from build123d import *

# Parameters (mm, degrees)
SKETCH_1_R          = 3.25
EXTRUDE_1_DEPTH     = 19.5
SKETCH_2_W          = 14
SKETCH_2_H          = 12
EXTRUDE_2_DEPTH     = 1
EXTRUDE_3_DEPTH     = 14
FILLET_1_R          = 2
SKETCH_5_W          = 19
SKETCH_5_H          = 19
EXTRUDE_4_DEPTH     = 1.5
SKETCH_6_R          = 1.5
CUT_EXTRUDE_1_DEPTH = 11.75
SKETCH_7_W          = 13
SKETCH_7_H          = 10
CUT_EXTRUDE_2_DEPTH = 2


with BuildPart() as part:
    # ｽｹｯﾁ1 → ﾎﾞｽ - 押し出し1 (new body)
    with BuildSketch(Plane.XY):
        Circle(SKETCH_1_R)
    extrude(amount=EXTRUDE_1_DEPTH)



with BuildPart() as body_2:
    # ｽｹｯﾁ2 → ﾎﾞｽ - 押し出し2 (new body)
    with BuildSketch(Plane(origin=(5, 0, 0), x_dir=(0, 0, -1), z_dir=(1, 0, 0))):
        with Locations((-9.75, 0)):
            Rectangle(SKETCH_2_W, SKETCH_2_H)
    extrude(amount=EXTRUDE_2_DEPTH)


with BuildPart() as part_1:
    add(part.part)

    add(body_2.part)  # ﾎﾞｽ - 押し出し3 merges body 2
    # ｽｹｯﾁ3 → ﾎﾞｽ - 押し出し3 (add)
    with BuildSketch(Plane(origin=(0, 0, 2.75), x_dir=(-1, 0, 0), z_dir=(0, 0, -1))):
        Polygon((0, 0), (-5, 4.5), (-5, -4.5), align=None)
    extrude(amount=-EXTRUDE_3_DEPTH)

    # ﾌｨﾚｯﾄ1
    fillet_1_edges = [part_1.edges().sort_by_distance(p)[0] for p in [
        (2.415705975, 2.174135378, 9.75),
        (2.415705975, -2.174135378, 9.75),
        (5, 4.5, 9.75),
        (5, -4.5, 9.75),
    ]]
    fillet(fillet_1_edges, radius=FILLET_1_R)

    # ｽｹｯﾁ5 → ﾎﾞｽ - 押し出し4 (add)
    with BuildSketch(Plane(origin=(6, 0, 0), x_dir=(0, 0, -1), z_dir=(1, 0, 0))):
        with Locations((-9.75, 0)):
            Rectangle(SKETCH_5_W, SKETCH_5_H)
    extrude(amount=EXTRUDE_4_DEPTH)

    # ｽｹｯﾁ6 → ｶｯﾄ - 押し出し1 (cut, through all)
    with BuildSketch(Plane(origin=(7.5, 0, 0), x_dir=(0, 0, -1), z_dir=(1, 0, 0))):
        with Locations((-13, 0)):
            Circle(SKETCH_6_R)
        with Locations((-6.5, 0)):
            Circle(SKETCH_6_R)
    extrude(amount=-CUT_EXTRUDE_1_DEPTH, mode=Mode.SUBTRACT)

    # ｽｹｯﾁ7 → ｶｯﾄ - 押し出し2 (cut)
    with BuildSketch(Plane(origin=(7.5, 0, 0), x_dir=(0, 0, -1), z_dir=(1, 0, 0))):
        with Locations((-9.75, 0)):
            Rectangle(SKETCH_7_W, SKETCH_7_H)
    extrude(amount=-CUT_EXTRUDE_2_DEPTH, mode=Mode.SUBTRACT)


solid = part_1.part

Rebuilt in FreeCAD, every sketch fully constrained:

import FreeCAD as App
import Part
import Sketcher


def edges_at(feature, points):
    """Names of the edges that pass closest to the given points."""
    edges = feature.Shape.Edges
    near = lambda p: min(range(len(edges)), key=lambda i: edges[i].distToShape(Part.Vertex(*p))[0])
    return sorted({f"Edge{near(p) + 1}" for p in points})

doc = App.newDocument("Part")
body = doc.addObject("PartDesign::Body", "Body")

# Sketch on XY plane
sketch1 = doc.addObject("Sketcher::SketchObject", "Sketch")
body.addObject(sketch1)
sketch1.AttachmentSupport = (doc.XY_Plane, [""])
sketch1.MapMode = "FlatFace"
sketch1.addGeometry(Part.Circle(App.Vector(0, 0, 0), App.Vector(0, 0, 1), 3.2), False)
sketch1.addConstraint([
    Sketcher.Constraint("Coincident", 0, 3, -1, 1),
    Sketcher.Constraint("Diameter", 0, 6.5),
])
pad1 = doc.addObject("PartDesign::Pad", "Pad")
body.addObject(pad1)
pad1.Profile = sketch1
pad1.Length = 19.5
body2 = doc.addObject("PartDesign::Body", "Body001")

# Sketch on YZ plane
sketch2 = doc.addObject("Sketcher::SketchObject", "Sketch001")
body2.addObject(sketch2)
sketch2.AttachmentSupport = (doc.getObject("YZ_Plane001"), [""])
sketch2.MapMode = "FlatFace"
sketch2.AttachmentOffset = App.Placement(App.Vector(0, 0, 5), App.Rotation())
sketch2.addGeometry([
    Part.LineSegment(App.Vector(6, 17, 0), App.Vector(-6, 17, 0)),
    Part.LineSegment(App.Vector(-6, 17, 0), App.Vector(-6, 3, 0)),
    Part.LineSegment(App.Vector(-6, 3, 0), App.Vector(6, 3, 0)),
    Part.LineSegment(App.Vector(6, 3, 0), App.Vector(6, 17, 0)),
], False)
sketch2.addConstraint([
    Sketcher.Constraint("Coincident", 0, 2, 1, 1),
    Sketcher.Constraint("Coincident", 1, 2, 2, 1),
    Sketcher.Constraint("Coincident", 2, 2, 3, 1),
    Sketcher.Constraint("Coincident", 3, 2, 0, 1),
    Sketcher.Constraint("Horizontal", 0),
    Sketcher.Constraint("Vertical", 1),
    Sketcher.Constraint("Horizontal", 2),
    Sketcher.Constraint("Vertical", 3),
    Sketcher.Constraint("DistanceX", 0, 2, 0, 1, 12.0),
    Sketcher.Constraint("DistanceY", 1, 2, 1, 1, 14.0),
    Sketcher.Constraint("DistanceX", 0, 2, -1, 1, 6.0),
    Sketcher.Constraint("DistanceY", -1, 1, 0, 2, 16.75),
])
pad2 = doc.addObject("PartDesign::Pad", "Pad001")
body2.addObject(pad2)
pad2.Profile = sketch2
pad2.Length = 1
body.AllowCompound = True
doc.recompute()

boolean = doc.addObject("PartDesign::Boolean", "Boolean")
body.addObject(boolean)
boolean.Type = "Fuse"
boolean.addObjects([body2])

# Sketch on XY plane
sketch3 = doc.addObject("Sketcher::SketchObject", "Sketch002")
body.addObject(sketch3)
sketch3.AttachmentSupport = (doc.XY_Plane, [""])
sketch3.MapMode = "FlatFace"
sketch3.AttachmentOffset = App.Placement(App.Vector(0, 0, 2.75), App.Rotation())
sketch3.addGeometry([
    Part.LineSegment(App.Vector(0, 0, 0), App.Vector(5, 4, 0)),
    Part.LineSegment(App.Vector(5, 4, 0), App.Vector(5, -4, 0)),
    Part.LineSegment(App.Vector(5, -4, 0), App.Vector(0, 0, 0)),
], False)
sketch3.addConstraint([
    Sketcher.Constraint("Coincident", 0, 2, 1, 1),
    Sketcher.Constraint("Coincident", 1, 2, 2, 1),
    Sketcher.Constraint("Coincident", 2, 2, 0, 1),
    Sketcher.Constraint("Vertical", 1),
    Sketcher.Constraint("Coincident", 2, 2, -1, 1),
    Sketcher.Constraint("Equal", 0, 2),
    Sketcher.Constraint("DistanceY", 1, 2, 1, 1, 9.0),
    Sketcher.Constraint("DistanceX", -1, 1, 0, 2, 5.0),
])
pad3 = doc.addObject("PartDesign::Pad", "Pad002")
body.addObject(pad3)
pad3.Profile = sketch3
pad3.Length = 14
doc.recompute()

fillet = doc.addObject("PartDesign::Fillet", "Fillet")
body.addObject(fillet)
fillet.Base = (pad3, edges_at(pad3, [
    (2.416, 2.174, 9.75),
    (2.416, -2.174, 9.75),
    (5, 4.5, 9.75),
    (5, -4.5, 9.75),
]))
fillet.Radius = 2

# Sketch on YZ plane
sketch4 = doc.addObject("Sketcher::SketchObject", "Sketch003")
body.addObject(sketch4)
sketch4.AttachmentSupport = (doc.YZ_Plane, [""])
sketch4.MapMode = "FlatFace"
sketch4.AttachmentOffset = App.Placement(App.Vector(0, 0, 6), App.Rotation())
sketch4.addGeometry([
    Part.LineSegment(App.Vector(10, 19, 0), App.Vector(-10, 19, 0)),
    Part.LineSegment(App.Vector(-10, 19, 0), App.Vector(-10, 0, 0)),
    Part.LineSegment(App.Vector(-10, 0, 0), App.Vector(10, 0, 0)),
    Part.LineSegment(App.Vector(10, 0, 0), App.Vector(10, 19, 0)),
], False)
sketch4.addConstraint([
    Sketcher.Constraint("Coincident", 0, 2, 1, 1),
    Sketcher.Constraint("Coincident", 1, 2, 2, 1),
    Sketcher.Constraint("Coincident", 2, 2, 3, 1),
    Sketcher.Constraint("Coincident", 3, 2, 0, 1),
    Sketcher.Constraint("Horizontal", 0),
    Sketcher.Constraint("Vertical", 1),
    Sketcher.Constraint("Horizontal", 2),
    Sketcher.Constraint("Vertical", 3),
    Sketcher.Constraint("Equal", 2, 1),
    Sketcher.Constraint("DistanceX", 0, 2, 0, 1, 19.0),
    Sketcher.Constraint("DistanceX", 0, 2, -1, 1, 9.5),
    Sketcher.Constraint("DistanceY", -1, 1, 0, 2, 19.25),
])
pad4 = doc.addObject("PartDesign::Pad", "Pad003")
body.addObject(pad4)
pad4.Profile = sketch4
pad4.Length = 1.5

# Sketch on YZ plane
sketch5 = doc.addObject("Sketcher::SketchObject", "Sketch004")
body.addObject(sketch5)
sketch5.AttachmentSupport = (doc.YZ_Plane, [""])
sketch5.MapMode = "FlatFace"
sketch5.AttachmentOffset = App.Placement(App.Vector(0, 0, 7.5), App.Rotation())
sketch5.addGeometry([
    Part.Circle(App.Vector(0, 13, 0), App.Vector(0, 0, 1), 1.5),
    Part.Circle(App.Vector(0, 6.5, 0), App.Vector(0, 0, 1), 1.5),
], False)
sketch5.addConstraint([
    Sketcher.Constraint("Equal", 0, 1),
    Sketcher.Constraint("PointOnObject", 0, 3, -2),
    Sketcher.Constraint("PointOnObject", 1, 3, -2),
    Sketcher.Constraint("Diameter", 0, 3.0),
    Sketcher.Constraint("DistanceY", -1, 1, 0, 3, 13.0),
    Sketcher.Constraint("DistanceY", -1, 1, 1, 3, 6.5),
])
pocket1 = doc.addObject("PartDesign::Pocket", "Pocket")
body.addObject(pocket1)
pocket1.Profile = sketch5
pocket1.Type = "ThroughAll"

# Sketch on YZ plane
sketch6 = doc.addObject("Sketcher::SketchObject", "Sketch005")
body.addObject(sketch6)
sketch6.AttachmentSupport = (doc.YZ_Plane, [""])
sketch6.MapMode = "FlatFace"
sketch6.AttachmentOffset = App.Placement(App.Vector(0, 0, 7.5), App.Rotation())
sketch6.addGeometry([
    Part.LineSegment(App.Vector(5, 16, 0), App.Vector(-5, 16, 0)),
    Part.LineSegment(App.Vector(-5, 16, 0), App.Vector(-5, 3, 0)),
    Part.LineSegment(App.Vector(-5, 3, 0), App.Vector(5, 3, 0)),
    Part.LineSegment(App.Vector(5, 3, 0), App.Vector(5, 16, 0)),
], False)
sketch6.addConstraint([
    Sketcher.Constraint("Coincident", 0, 2, 1, 1),
    Sketcher.Constraint("Coincident", 1, 2, 2, 1),
    Sketcher.Constraint("Coincident", 2, 2, 3, 1),
    Sketcher.Constraint("Coincident", 3, 2, 0, 1),
    Sketcher.Constraint("Horizontal", 0),
    Sketcher.Constraint("Vertical", 1),
    Sketcher.Constraint("Horizontal", 2),
    Sketcher.Constraint("Vertical", 3),
    Sketcher.Constraint("DistanceX", 0, 2, 0, 1, 10.0),
    Sketcher.Constraint("DistanceY", 1, 2, 1, 1, 13.0),
    Sketcher.Constraint("DistanceX", 0, 2, -1, 1, 5.0),
    Sketcher.Constraint("DistanceY", -1, 1, 0, 2, 16.25),
])
pocket2 = doc.addObject("PartDesign::Pocket", "Pocket001")
body.addObject(pocket2)
pocket2.Profile = sketch6
pocket2.Length = 2

doc.recompute()
